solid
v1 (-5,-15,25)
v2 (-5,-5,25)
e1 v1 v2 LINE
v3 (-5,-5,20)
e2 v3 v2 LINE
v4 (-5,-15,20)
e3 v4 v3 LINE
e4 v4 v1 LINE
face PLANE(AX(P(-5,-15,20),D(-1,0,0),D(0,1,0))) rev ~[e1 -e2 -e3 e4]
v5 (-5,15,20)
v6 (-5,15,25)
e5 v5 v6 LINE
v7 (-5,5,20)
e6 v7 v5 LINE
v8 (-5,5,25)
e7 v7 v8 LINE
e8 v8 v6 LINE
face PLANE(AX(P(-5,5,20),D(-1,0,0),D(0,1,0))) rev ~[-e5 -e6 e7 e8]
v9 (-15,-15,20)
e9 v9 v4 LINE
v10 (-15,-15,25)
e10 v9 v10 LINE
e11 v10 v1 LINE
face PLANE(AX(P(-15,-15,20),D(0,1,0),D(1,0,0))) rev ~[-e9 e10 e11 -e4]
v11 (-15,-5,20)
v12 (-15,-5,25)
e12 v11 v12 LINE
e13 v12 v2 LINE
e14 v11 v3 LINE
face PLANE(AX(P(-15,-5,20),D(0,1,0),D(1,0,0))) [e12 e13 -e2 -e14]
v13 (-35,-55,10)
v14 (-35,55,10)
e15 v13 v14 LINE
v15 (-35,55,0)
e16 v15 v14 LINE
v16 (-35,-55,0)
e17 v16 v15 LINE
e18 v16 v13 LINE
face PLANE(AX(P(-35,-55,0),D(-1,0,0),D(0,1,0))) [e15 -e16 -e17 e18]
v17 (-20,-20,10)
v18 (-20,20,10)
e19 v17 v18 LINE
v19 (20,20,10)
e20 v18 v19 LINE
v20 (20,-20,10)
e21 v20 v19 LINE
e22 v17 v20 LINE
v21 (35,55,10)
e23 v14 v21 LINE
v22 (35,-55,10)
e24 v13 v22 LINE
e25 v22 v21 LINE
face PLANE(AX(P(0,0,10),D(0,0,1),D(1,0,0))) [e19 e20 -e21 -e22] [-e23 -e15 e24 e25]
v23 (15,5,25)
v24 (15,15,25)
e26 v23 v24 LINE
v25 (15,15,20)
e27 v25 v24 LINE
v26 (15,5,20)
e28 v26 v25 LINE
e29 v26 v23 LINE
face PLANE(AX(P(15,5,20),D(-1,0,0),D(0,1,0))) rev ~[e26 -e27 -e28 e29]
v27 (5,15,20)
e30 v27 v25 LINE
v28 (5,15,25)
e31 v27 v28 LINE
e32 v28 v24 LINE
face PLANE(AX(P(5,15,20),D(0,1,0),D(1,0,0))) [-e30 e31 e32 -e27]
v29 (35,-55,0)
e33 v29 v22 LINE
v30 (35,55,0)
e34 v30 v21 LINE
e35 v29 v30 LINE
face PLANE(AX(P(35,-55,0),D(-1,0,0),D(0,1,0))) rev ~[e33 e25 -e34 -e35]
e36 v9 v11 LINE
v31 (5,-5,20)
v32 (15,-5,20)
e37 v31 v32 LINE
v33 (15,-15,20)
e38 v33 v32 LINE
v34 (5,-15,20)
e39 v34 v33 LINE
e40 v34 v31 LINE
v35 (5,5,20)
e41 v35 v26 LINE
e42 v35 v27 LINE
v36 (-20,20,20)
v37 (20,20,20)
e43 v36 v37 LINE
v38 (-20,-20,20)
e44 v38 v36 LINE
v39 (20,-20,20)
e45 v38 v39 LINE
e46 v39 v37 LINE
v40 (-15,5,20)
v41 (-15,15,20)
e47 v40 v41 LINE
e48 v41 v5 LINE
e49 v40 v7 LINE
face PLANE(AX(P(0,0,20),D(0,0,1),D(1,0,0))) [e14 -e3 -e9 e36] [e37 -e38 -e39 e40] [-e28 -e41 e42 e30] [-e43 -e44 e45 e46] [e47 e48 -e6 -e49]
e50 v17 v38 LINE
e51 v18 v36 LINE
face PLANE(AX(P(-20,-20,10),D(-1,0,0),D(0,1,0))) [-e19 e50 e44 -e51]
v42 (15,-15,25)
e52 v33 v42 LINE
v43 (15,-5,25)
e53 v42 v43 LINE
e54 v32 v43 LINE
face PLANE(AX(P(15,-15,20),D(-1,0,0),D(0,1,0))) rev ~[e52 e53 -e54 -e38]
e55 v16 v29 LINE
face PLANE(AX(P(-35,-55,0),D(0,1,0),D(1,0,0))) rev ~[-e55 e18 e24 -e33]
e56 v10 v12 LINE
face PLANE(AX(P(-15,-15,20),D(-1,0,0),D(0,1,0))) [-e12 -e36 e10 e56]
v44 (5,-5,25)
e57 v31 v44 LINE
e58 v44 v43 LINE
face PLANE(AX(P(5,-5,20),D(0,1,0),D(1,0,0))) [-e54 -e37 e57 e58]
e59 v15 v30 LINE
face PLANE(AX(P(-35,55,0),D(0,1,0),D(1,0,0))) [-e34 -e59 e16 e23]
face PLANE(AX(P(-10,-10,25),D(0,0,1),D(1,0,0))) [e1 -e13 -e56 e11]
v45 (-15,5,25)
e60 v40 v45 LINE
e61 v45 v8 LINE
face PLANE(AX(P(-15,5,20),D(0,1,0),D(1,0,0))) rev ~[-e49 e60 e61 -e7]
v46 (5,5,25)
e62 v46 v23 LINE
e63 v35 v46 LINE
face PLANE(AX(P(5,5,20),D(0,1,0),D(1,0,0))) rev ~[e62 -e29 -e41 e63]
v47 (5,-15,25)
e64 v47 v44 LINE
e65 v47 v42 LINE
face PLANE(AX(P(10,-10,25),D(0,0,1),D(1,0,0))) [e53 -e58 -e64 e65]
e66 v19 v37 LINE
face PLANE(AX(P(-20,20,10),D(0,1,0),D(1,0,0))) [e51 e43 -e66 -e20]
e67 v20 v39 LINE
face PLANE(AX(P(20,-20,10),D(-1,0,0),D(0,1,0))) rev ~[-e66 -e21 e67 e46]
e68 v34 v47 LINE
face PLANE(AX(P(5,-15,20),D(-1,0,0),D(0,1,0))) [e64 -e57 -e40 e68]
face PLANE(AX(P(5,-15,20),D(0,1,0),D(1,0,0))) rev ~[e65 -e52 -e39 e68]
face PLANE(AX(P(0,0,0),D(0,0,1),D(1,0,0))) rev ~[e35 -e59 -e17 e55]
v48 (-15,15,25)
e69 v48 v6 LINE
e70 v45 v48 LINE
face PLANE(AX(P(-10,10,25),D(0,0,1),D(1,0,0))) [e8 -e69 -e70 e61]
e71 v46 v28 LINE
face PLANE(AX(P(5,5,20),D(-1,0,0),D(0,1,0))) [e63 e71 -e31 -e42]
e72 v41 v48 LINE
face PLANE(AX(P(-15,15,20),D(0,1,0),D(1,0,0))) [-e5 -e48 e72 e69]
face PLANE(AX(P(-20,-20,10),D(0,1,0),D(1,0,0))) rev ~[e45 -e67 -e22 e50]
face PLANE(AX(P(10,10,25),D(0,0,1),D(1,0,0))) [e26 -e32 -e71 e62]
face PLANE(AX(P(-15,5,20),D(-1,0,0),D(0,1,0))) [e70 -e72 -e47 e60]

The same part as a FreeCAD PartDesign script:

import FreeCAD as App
import Part
import Sketcher
from FreeCAD import Vector


def add_polygon(sketch, points):
    """Adds a closed chain of lines whose ends are joined by coincident constraints."""
    first, n = sketch.GeometryCount, len(points)
    for a, b in zip(points, points[1:] + points[:1]):
        sketch.addGeometry(Part.LineSegment(App.Vector(*a, 0), App.Vector(*b, 0)), False)
    for i in range(n):
        sketch.addConstraint(Sketcher.Constraint("Coincident", first + i, 2, first + (i + 1) % n, 1))

doc = App.newDocument("Part")
body = doc.addObject("PartDesign::Body", "Body")

sketch1 = body.newObject("Sketcher::SketchObject", "Sketch")
sketch1.AttachmentSupport = (doc.getObject("XY_Plane"), [""])
sketch1.MapMode = "FlatFace"
add_polygon(sketch1, [(-35, 55), (-35, -55), (35, -55), (35, 55)])
sketch1.addConstraint(Sketcher.Constraint("Vertical", 0))
sketch1.addConstraint(Sketcher.Constraint("Horizontal", 1))
sketch1.addConstraint(Sketcher.Constraint("Vertical", 2))
sketch1.addConstraint(Sketcher.Constraint("Horizontal", 3))
sketch1.addConstraint(Sketcher.Constraint("Symmetric", 0, 2, 2, 2, -1, 1))
sketch1.addConstraint(Sketcher.Constraint("DistanceX", 1, 1, 1, 2, 70.0))
sketch1.addConstraint(Sketcher.Constraint("DistanceY", 0, 2, 0, 1, 110.0))
pad1 = body.newObject("PartDesign::Pad", "Pad")
pad1.Profile = sketch1
pad1.Length = 10

sketch2 = body.newObject("Sketcher::SketchObject", "Sketch001")
sketch2.AttachmentSupport = (doc.getObject("XY_Plane"), [""])
sketch2.MapMode = "FlatFace"
sketch2.AttachmentOffset = App.Placement(Vector(0, 0, 10), App.Rotation())
add_polygon(sketch2, [(-20, 20), (-20, -20), (20, -20), (20, 20)])
sketch2.addConstraint(Sketcher.Constraint("Vertical", 0))
sketch2.addConstraint(Sketcher.Constraint("Horizontal", 1))
sketch2.addConstraint(Sketcher.Constraint("Vertical", 2))
sketch2.addConstraint(Sketcher.Constraint("Horizontal", 3))
sketch2.addConstraint(Sketcher.Constraint("Symmetric", 0, 2, 2, 2, -1, 1))
sketch2.addConstraint(Sketcher.Constraint("Equal", 3, 0))
sketch2.addConstraint(Sketcher.Constraint("DistanceX", 1, 1, 1, 2, 40.0))
pad2 = body.newObject("PartDesign::Pad", "Pad001")
pad2.Profile = sketch2
pad2.Length = 10

sketch3 = body.newObject("Sketcher::SketchObject", "Sketch002")
sketch3.AttachmentSupport = (doc.getObject("XY_Plane"), [""])
sketch3.MapMode = "FlatFace"
sketch3.AttachmentOffset = App.Placement(Vector(0, 0, 20), App.Rotation())
add_polygon(sketch3, [(-15, 15), (-15, 5), (-5, 5), (-5, 15)])
add_polygon(sketch3, [(5, 15), (5, 5), (15, 5), (15, 15)])
add_polygon(sketch3, [(5, -5), (5, -15), (15, -15), (15, -5)])
add_polygon(sketch3, [(-15, -5), (-15, -15), (-5, -15), (-5, -5)])
sketch3.addConstraint(Sketcher.Constraint("Vertical", 0))
sketch3.addConstraint(Sketcher.Constraint("Horizontal", 1))
sketch3.addConstraint(Sketcher.Constraint("Vertical", 2))
sketch3.addConstraint(Sketcher.Constraint("Horizontal", 3))
sketch3.addConstraint(Sketcher.Constraint("Vertical", 4))
sketch3.addConstraint(Sketcher.Constraint("Horizontal", 5))
sketch3.addConstraint(Sketcher.Constraint("Vertical", 6))
sketch3.addConstraint(Sketcher.Constraint("Horizontal", 7))
sketch3.addConstraint(Sketcher.Constraint("Vertical", 8))
sketch3.addConstraint(Sketcher.Constraint("Horizontal", 9))
sketch3.addConstraint(Sketcher.Constraint("Vertical", 10))
sketch3.addConstraint(Sketcher.Constraint("Horizontal", 11))
sketch3.addConstraint(Sketcher.Constraint("Vertical", 12))
sketch3.addConstraint(Sketcher.Constraint("Horizontal", 13))
sketch3.addConstraint(Sketcher.Constraint("Vertical", 14))
sketch3.addConstraint(Sketcher.Constraint("Horizontal", 15))
sketch3.addConstraint(Sketcher.Constraint("Symmetric", 2, 2, 8, 2, -1, 1))
sketch3.addConstraint(Sketcher.Constraint("Symmetric", 0, 2, 10, 2, -1, 1))
sketch3.addConstraint(Sketcher.Constraint("Symmetric", 6, 2, 12, 2, -1, 1))
sketch3.addConstraint(Sketcher.Constraint("Symmetric", 4, 2, 14, 2, -1, 1))
sketch3.addConstraint(Sketcher.Constraint("Symmetric", 1, 2, 4, 2, -2))
sketch3.addConstraint(Sketcher.Constraint("Symmetric", 3, 2, 6, 2, -2))
sketch3.addConstraint(Sketcher.Constraint("Equal", 15, 0))
sketch3.addConstraint(Sketcher.Constraint("DistanceX", 1, 1, 1, 2, 10.0))
sketch3.addConstraint(Sketcher.Constraint("DistanceX", 0, 2, -1, 1, 15.0))
sketch3.addConstraint(Sketcher.Constraint("DistanceY", -1, 1, 0, 2, 5.0))
pad3 = body.newObject("PartDesign::Pad", "Pad002")
pad3.Profile = sketch3
pad3.Length = 5

doc.recompute()
